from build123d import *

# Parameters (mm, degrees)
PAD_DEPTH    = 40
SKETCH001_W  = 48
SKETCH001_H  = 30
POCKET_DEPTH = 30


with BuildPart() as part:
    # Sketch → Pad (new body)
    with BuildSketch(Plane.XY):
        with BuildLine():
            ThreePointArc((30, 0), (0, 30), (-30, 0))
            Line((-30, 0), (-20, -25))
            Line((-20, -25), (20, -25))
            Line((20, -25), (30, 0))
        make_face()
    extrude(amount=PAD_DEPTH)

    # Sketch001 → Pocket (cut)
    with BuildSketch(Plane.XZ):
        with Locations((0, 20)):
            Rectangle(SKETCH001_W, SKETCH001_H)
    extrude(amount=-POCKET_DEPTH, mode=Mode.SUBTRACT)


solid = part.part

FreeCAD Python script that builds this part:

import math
import FreeCAD as App
import Part
import Sketcher
from FreeCAD import Vector

doc = App.newDocument("Part")
body = doc.addObject("PartDesign::Body", "Body")

sketch1 = body.newObject("Sketcher::SketchObject", "Sketch")
sketch1.AttachmentSupport = (doc.getObject("XY_Plane"), [""])
sketch1.MapMode = "FlatFace"
sketch1.addGeometry(Part.ArcOfCircle(Part.Circle(Vector(0, 0, 0), Vector(0, 0, 1), 30), math.radians(0), math.radians(180)), False)
sketch1.addGeometry(Part.LineSegment(Vector(-30, 0, 0), Vector(-20, -25, 0)), False)
sketch1.addGeometry(Part.LineSegment(Vector(-20, -25, 0), Vector(20, -25, 0)), False)
sketch1.addGeometry(Part.LineSegment(Vector(20, -25, 0), Vector(30, 0, 0)), False)
sketch1.addConstraint(Sketcher.Constraint("Coincident", 0, 2, 1, 1))
sketch1.addConstraint(Sketcher.Constraint("Coincident", 1, 2, 2, 1))
sketch1.addConstraint(Sketcher.Constraint("Coincident", 2, 2, 3, 1))
sketch1.addConstraint(Sketcher.Constraint("Coincident", 3, 2, 0, 1))
sketch1.addConstraint(Sketcher.Constraint("Horizontal", 2))
sketch1.addConstraint(Sketcher.Constraint("Coincident", 0, 3, -1, 1))
sketch1.addConstraint(Sketcher.Constraint("PointOnObject", 0, 2, -1))
sketch1.addConstraint(Sketcher.Constraint("PointOnObject", 3, 2, -1))
sketch1.addConstraint(Sketcher.Constraint("Equal", 1, 3))
sketch1.addConstraint(Sketcher.Constraint("Radius", 0, 30.0))
sketch1.addConstraint(Sketcher.Constraint("DistanceX", 2, 1, 2, 2, 40.0))
sketch1.addConstraint(Sketcher.Constraint("DistanceY", 1, 2, -1, 1, 25.0))
pad1 = body.newObject("PartDesign::Pad", "Pad")
pad1.Profile = sketch1
pad1.Length = 40

sketch2 = body.newObject("Sketcher::SketchObject", "Sketch001")
sketch2.AttachmentSupport = (doc.getObject("XZ_Plane"), [""])
sketch2.MapMode = "FlatFace"
sketch2.addGeometry(Part.LineSegment(Vector(-24, 35, 0), Vector(-24, 5, 0)), False)
sketch2.addGeometry(Part.LineSegment(Vector(-24, 5, 0), Vector(24, 5, 0)), False)
sketch2.addGeometry(Part.LineSegment(Vector(24, 5, 0), Vector(24, 35, 0)), False)
sketch2.addGeometry(Part.LineSegment(Vector(24, 35, 0), Vector(-24, 35, 0)), False)
sketch2.addConstraint(Sketcher.Constraint("Coincident", 0, 2, 1, 1))
sketch2.addConstraint(Sketcher.Constraint("Coincident", 1, 2, 2, 1))
sketch2.addConstraint(Sketcher.Constraint("Coincident", 2, 2, 3, 1))
sketch2.addConstraint(Sketcher.Constraint("Coincident", 3, 2, 0, 1))
sketch2.addConstraint(Sketcher.Constraint("Vertical", 0))
sketch2.addConstraint(Sketcher.Constraint("Horizontal", 1))
sketch2.addConstraint(Sketcher.Constraint("Vertical", 2))
sketch2.addConstraint(Sketcher.Constraint("Horizontal", 3))
sketch2.addConstraint(Sketcher.Constraint("DistanceX", 1, 1, 1, 2, 48.0))
sketch2.addConstraint(Sketcher.Constraint("DistanceY", 0, 2, 0, 1, 30.0))
sketch2.addConstraint(Sketcher.Constraint("DistanceX", 0, 2, -1, 1, 24.0))
sketch2.addConstraint(Sketcher.Constraint("DistanceY", -1, 1, 0, 2, 5.0))
pocket1 = body.newObject("PartDesign::Pocket", "Pocket")
pocket1.Profile = sketch2
pocket1.Length = 30

doc.recompute()
